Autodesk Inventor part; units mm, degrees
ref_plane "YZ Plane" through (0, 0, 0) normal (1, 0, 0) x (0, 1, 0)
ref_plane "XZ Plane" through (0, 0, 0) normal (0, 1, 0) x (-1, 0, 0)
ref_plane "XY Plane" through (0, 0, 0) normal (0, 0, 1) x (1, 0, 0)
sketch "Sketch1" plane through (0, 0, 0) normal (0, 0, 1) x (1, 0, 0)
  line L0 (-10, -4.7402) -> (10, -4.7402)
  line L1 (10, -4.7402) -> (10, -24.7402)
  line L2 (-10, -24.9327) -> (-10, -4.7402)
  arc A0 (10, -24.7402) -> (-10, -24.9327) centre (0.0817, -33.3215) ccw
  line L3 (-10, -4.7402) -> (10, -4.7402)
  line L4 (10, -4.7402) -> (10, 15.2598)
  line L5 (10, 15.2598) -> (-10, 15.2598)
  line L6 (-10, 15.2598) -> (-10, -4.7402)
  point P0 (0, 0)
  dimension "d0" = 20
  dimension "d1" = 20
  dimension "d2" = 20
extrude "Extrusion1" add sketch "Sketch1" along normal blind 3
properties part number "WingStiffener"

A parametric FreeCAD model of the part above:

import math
import FreeCAD as App
import Part
import Sketcher
Q = App.Units.Quantity

doc = App.newDocument("Part")
params = doc.addObject("Spreadsheet::Sheet", "Params")
for row, (alias, value) in enumerate([
    ("sketch1_width", "20 mm"),
    ("sketch1_height", "40 mm"),
    ("pad1_length", "3 mm"),
], start=1):
    params.set(f"A{row}", alias)
    params.set(f"B{row}", "=" + value)
    params.setAlias(f"B{row}", alias)

body = doc.addObject("PartDesign::Body", "Body")

sketch1 = doc.addObject("Sketcher::SketchObject", "Sketch")
body.addObject(sketch1)
sketch1.AttachmentSupport = (doc.XY_Plane, [""])
sketch1.MapMode = "FlatFace"
sketch1.addGeometry([
    Part.LineSegment(App.Vector(-10, 15, 0), App.Vector(-10, -25, 0)),
    Part.ArcOfCircle(Part.Circle(App.Vector(0, -33, 0), App.Vector(0, 0, 1), 13), math.radians(41), math.radians(140)),
    Part.LineSegment(App.Vector(10, -25, 0), App.Vector(10, 15, 0)),
    Part.LineSegment(App.Vector(10, 15, 0), App.Vector(-10, 15, 0)),
], False)
sketch1.addConstraint([
    Sketcher.Constraint("Coincident", 0, 2, 1, 2),
    Sketcher.Constraint("Coincident", 1, 1, 2, 1),
    Sketcher.Constraint("Coincident", 2, 2, 3, 1),
    Sketcher.Constraint("Coincident", 3, 2, 0, 1),
    Sketcher.Constraint("Vertical", 0),
    Sketcher.Constraint("Vertical", 2),
    Sketcher.Constraint("Horizontal", 3),
    Sketcher.Constraint("DistanceX", 3, 2, 3, 1, Q("20 mm")),
    Sketcher.Constraint("DistanceY", 2, 1, 2, 2, Q("40 mm")),
    Sketcher.Constraint("DistanceX", 0, 2, -1, 1, Q("10 mm")),
    Sketcher.Constraint("Radius", 1, Q("13.1153 mm")),
    Sketcher.Constraint("DistanceY", 0, 2, 0, 1, Q("40.1925 mm")),
    Sketcher.Constraint("DistanceY", 1, 3, -1, 1, Q("33.3215 mm")),
])
sketch1.setExpression("Constraints[7]", "Params.sketch1_width")
sketch1.setExpression("Constraints[8]", "Params.sketch1_height")
pad1 = doc.addObject("PartDesign::Pad", "Pad")
body.addObject(pad1)
pad1.Profile = sketch1
pad1.setExpression("Length", "Params.pad1_length")

doc.recompute()
